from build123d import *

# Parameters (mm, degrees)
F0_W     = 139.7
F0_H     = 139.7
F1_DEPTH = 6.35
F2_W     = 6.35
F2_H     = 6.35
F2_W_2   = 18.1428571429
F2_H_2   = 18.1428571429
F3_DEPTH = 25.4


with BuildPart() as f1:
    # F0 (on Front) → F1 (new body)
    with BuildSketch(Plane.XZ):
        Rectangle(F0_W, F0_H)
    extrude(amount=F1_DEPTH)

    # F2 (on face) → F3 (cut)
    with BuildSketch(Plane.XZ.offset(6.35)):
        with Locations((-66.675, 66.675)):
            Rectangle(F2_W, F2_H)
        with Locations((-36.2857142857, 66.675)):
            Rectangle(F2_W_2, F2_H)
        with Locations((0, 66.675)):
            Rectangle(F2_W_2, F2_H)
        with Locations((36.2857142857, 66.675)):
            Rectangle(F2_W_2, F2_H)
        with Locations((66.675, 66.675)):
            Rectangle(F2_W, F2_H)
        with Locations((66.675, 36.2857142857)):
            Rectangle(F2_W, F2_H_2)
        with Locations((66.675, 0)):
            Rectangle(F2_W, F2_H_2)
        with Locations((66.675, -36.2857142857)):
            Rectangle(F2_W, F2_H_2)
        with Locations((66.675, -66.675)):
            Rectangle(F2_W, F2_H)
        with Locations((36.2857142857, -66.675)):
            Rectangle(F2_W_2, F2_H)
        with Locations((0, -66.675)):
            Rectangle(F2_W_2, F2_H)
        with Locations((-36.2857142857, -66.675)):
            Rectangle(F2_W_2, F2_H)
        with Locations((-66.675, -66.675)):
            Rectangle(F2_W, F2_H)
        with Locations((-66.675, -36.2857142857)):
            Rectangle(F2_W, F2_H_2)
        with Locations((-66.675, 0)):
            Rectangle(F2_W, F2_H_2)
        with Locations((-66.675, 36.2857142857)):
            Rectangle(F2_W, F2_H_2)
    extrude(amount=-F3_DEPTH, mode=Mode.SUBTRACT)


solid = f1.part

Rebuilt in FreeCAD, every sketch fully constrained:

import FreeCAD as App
import Part
import Sketcher
Q = App.Units.Quantity

doc = App.newDocument("Part")
body = doc.addObject("PartDesign::Body", "Body")

sketch1 = body.newObject("Sketcher::SketchObject", "Sketch")
sketch1.AttachmentSupport = (doc.getObject("XZ_Plane"), [""])
sketch1.MapMode = "FlatFace"
sketch1.addGeometry([
    Part.LineSegment(App.Vector(-69.85, 69.85, 0), App.Vector(-69.85, -69.85, 0)),
    Part.LineSegment(App.Vector(-69.85, -69.85, 0), App.Vector(69.85, -69.85, 0)),
    Part.LineSegment(App.Vector(69.85, -69.85, 0), App.Vector(69.85, 69.85, 0)),
    Part.LineSegment(App.Vector(69.85, 69.85, 0), App.Vector(-69.85, 69.85, 0)),
], False)
sketch1.addConstraint([
    Sketcher.Constraint("Coincident", 0, 2, 1, 1),
    Sketcher.Constraint("Coincident", 1, 2, 2, 1),
    Sketcher.Constraint("Coincident", 2, 2, 3, 1),
    Sketcher.Constraint("Coincident", 3, 2, 0, 1),
    Sketcher.Constraint("Vertical", 0),
    Sketcher.Constraint("Horizontal", 1),
    Sketcher.Constraint("Vertical", 2),
    Sketcher.Constraint("Horizontal", 3),
    Sketcher.Constraint("Symmetric", 0, 2, 2, 2, -1, 1),
    Sketcher.Constraint("Equal", 3, 0),
    Sketcher.Constraint("DistanceX", 1, 1, 1, 2, Q("5.5 in")),
])
pad1 = body.newObject("PartDesign::Pad", "Pad")
pad1.Profile = sketch1
pad1.Length = Q("0.25 in")

sketch2 = body.newObject("Sketcher::SketchObject", "Sketch001")
sketch2.AttachmentSupport = (doc.getObject("XZ_Plane"), [""])
sketch2.MapMode = "FlatFace"
sketch2.AttachmentOffset = App.Placement(App.Vector(0, 0, 0.25 * 25.4), App.Rotation())
sketch2.addGeometry([
    Part.LineSegment(App.Vector(-69.85, 69.85, 0), App.Vector(-69.85, 63.5, 0)),
    Part.LineSegment(App.Vector(-69.85, 63.5, 0), App.Vector(-63.5, 63.5, 0)),
    Part.LineSegment(App.Vector(-63.5, 63.5, 0), App.Vector(-63.5, 69.85, 0)),
    Part.LineSegment(App.Vector(-63.5, 69.85, 0), App.Vector(-69.85, 69.85, 0)),
    Part.LineSegment(App.Vector(-45.357143, 69.85, 0), App.Vector(-45.357143, 63.5, 0)),
    Part.LineSegment(App.Vector(-45.357143, 63.5, 0), App.Vector(-27.214286, 63.5, 0)),
    Part.LineSegment(App.Vector(-27.214286, 63.5, 0), App.Vector(-27.214286, 69.85, 0)),
    Part.LineSegment(App.Vector(-27.214286, 69.85, 0), App.Vector(-45.357143, 69.85, 0)),
    Part.LineSegment(App.Vector(-9.071429, 69.85, 0), App.Vector(-9.071429, 63.5, 0)),
    Part.LineSegment(App.Vector(-9.071429, 63.5, 0), App.Vector(9.071429, 63.5, 0)),
    Part.LineSegment(App.Vector(9.071429, 63.5, 0), App.Vector(9.071429, 69.85, 0)),
    Part.LineSegment(App.Vector(9.071429, 69.85, 0), App.Vector(-9.071429, 69.85, 0)),
    Part.LineSegment(App.Vector(27.214286, 69.85, 0), App.Vector(27.214286, 63.5, 0)),
    Part.LineSegment(App.Vector(27.214286, 63.5, 0), App.Vector(45.357143, 63.5, 0)),
    Part.LineSegment(App.Vector(45.357143, 63.5, 0), App.Vector(45.357143, 69.85, 0)),
    Part.LineSegment(App.Vector(45.357143, 69.85, 0), App.Vector(27.214286, 69.85, 0)),
    Part.LineSegment(App.Vector(63.5, 69.85, 0), App.Vector(63.5, 63.5, 0)),
    Part.LineSegment(App.Vector(63.5, 63.5, 0), App.Vector(69.85, 63.5, 0)),
    Part.LineSegment(App.Vector(69.85, 63.5, 0), App.Vector(69.85, 69.85, 0)),
    Part.LineSegment(App.Vector(69.85, 69.85, 0), App.Vector(63.5, 69.85, 0)),
    Part.LineSegment(App.Vector(63.5, 45.357143, 0), App.Vector(63.5, 27.214286, 0)),
    Part.LineSegment(App.Vector(63.5, 27.214286, 0), App.Vector(69.85, 27.214286, 0)),
    Part.LineSegment(App.Vector(69.85, 27.214286, 0), App.Vector(69.85, 45.357143, 0)),
    Part.LineSegment(App.Vector(69.85, 45.357143, 0), App.Vector(63.5, 45.357143, 0)),
    Part.LineSegment(App.Vector(63.5, 9.071429, 0), App.Vector(63.5, -9.071429, 0)),
    Part.LineSegment(App.Vector(63.5, -9.071429, 0), App.Vector(69.85, -9.071429, 0)),
    Part.LineSegment(App.Vector(69.85, -9.071429, 0), App.Vector(69.85, 9.071429, 0)),
    Part.LineSegment(App.Vector(69.85, 9.071429, 0), App.Vector(63.5, 9.071429, 0)),
    Part.LineSegment(App.Vector(63.5, -27.214286, 0), App.Vector(63.5, -45.357143, 0)),
    Part.LineSegment(App.Vector(63.5, -45.357143, 0), App.Vector(69.85, -45.357143, 0)),
    Part.LineSegment(App.Vector(69.85, -45.357143, 0), App.Vector(69.85, -27.214286, 0)),
    Part.LineSegment(App.Vector(69.85, -27.214286, 0), App.Vector(63.5, -27.214286, 0)),
    Part.LineSegment(App.Vector(63.5, -63.5, 0), App.Vector(63.5, -69.85, 0)),
    Part.LineSegment(App.Vector(63.5, -69.85, 0), App.Vector(69.85, -69.85, 0)),
    Part.LineSegment(App.Vector(69.85, -69.85, 0), App.Vector(69.85, -63.5, 0)),
    Part.LineSegment(App.Vector(69.85, -63.5, 0), App.Vector(63.5, -63.5, 0)),
    Part.LineSegment(App.Vector(27.214286, -63.5, 0), App.Vector(27.214286, -69.85, 0)),
    Part.LineSegment(App.Vector(27.214286, -69.85, 0), App.Vector(45.357143, -69.85, 0)),
    Part.LineSegment(App.Vector(45.357143, -69.85, 0), App.Vector(45.357143, -63.5, 0)),
    Part.LineSegment(App.Vector(45.357143, -63.5, 0), App.Vector(27.214286, -63.5, 0)),
    Part.LineSegment(App.Vector(-9.071429, -63.5, 0), App.Vector(-9.071429, -69.85, 0)),
    Part.LineSegment(App.Vector(-9.071429, -69.85, 0), App.Vector(9.071429, -69.85, 0)),
    Part.LineSegment(App.Vector(9.071429, -69.85, 0), App.Vector(9.071429, -63.5, 0)),
    Part.LineSegment(App.Vector(9.071429, -63.5, 0), App.Vector(-9.071429, -63.5, 0)),
    Part.LineSegment(App.Vector(-45.357143, -63.5, 0), App.Vector(-45.357143, -69.85, 0)),
    Part.LineSegment(App.Vector(-45.357143, -69.85, 0), App.Vector(-27.214286, -69.85, 0)),
    Part.LineSegment(App.Vector(-27.214286, -69.85, 0), App.Vector(-27.214286, -63.5, 0)),
    Part.LineSegment(App.Vector(-27.214286, -63.5, 0), App.Vector(-45.357143, -63.5, 0)),
    Part.LineSegment(App.Vector(-69.85, -63.5, 0), App.Vector(-69.85, -69.85, 0)),
    Part.LineSegment(App.Vector(-69.85, -69.85, 0), App.Vector(-63.5, -69.85, 0)),
    Part.LineSegment(App.Vector(-63.5, -69.85, 0), App.Vector(-63.5, -63.5, 0)),
    Part.LineSegment(App.Vector(-63.5, -63.5, 0), App.Vector(-69.85, -63.5, 0)),
    Part.LineSegment(App.Vector(-69.85, -27.214286, 0), App.Vector(-69.85, -45.357143, 0)),
    Part.LineSegment(App.Vector(-69.85, -45.357143, 0), App.Vector(-63.5, -45.357143, 0)),
    Part.LineSegment(App.Vector(-63.5, -45.357143, 0), App.Vector(-63.5, -27.214286, 0)),
    Part.LineSegment(App.Vector(-63.5, -27.214286, 0), App.Vector(-69.85, -27.214286, 0)),
    Part.LineSegment(App.Vector(-69.85, 9.071429, 0), App.Vector(-69.85, -9.071429, 0)),
    Part.LineSegment(App.Vector(-69.85, -9.071429, 0), App.Vector(-63.5, -9.071429, 0)),
    Part.LineSegment(App.Vector(-63.5, -9.071429, 0), App.Vector(-63.5, 9.071429, 0)),
    Part.LineSegment(App.Vector(-63.5, 9.071429, 0), App.Vector(-69.85, 9.071429, 0)),
    Part.LineSegment(App.Vector(-69.85, 45.357143, 0), App.Vector(-69.85, 27.214286, 0)),
    Part.LineSegment(App.Vector(-69.85, 27.214286, 0), App.Vector(-63.5, 27.214286, 0)),
    Part.LineSegment(App.Vector(-63.5, 27.214286, 0), App.Vector(-63.5, 45.357143, 0)),
    Part.LineSegment(App.Vector(-63.5, 45.357143, 0), App.Vector(-69.85, 45.357143, 0)),
], False)
sketch2.addConstraint([
    Sketcher.Constraint("Coincident", 0, 2, 1, 1),
    Sketcher.Constraint("Coincident", 1, 2, 2, 1),
    Sketcher.Constraint("Coincident", 2, 2, 3, 1),
    Sketcher.Constraint("Coincident", 3, 2, 0, 1),
    Sketcher.Constraint("Coincident", 4, 2, 5, 1),
    Sketcher.Constraint("Coincident", 5, 2, 6, 1),
    Sketcher.Constraint("Coincident", 6, 2, 7, 1),
    Sketcher.Constraint("Coincident", 7, 2, 4, 1),
    Sketcher.Constraint("Coincident", 8, 2, 9, 1),
    Sketcher.Constraint("Coincident", 9, 2, 10, 1),
    Sketcher.Constraint("Coincident", 10, 2, 11, 1),
    Sketcher.Constraint("Coincident", 11, 2, 8, 1),
    Sketcher.Constraint("Coincident", 12, 2, 13, 1),
    Sketcher.Constraint("Coincident", 13, 2, 14, 1),
    Sketcher.Constraint("Coincident", 14, 2, 15, 1),
    Sketcher.Constraint("Coincident", 15, 2, 12, 1),
    Sketcher.Constraint("Coincident", 16, 2, 17, 1),
    Sketcher.Constraint("Coincident", 17, 2, 18, 1),
    Sketcher.Constraint("Coincident", 18, 2, 19, 1),
    Sketcher.Constraint("Coincident", 19, 2, 16, 1),
    Sketcher.Constraint("Coincident", 20, 2, 21, 1),
    Sketcher.Constraint("Coincident", 21, 2, 22, 1),
    Sketcher.Constraint("Coincident", 22, 2, 23, 1),
    Sketcher.Constraint("Coincident", 23, 2, 20, 1),
    Sketcher.Constraint("Coincident", 24, 2, 25, 1),
    Sketcher.Constraint("Coincident", 25, 2, 26, 1),
    Sketcher.Constraint("Coincident", 26, 2, 27, 1),
    Sketcher.Constraint("Coincident", 27, 2, 24, 1),
    Sketcher.Constraint("Coincident", 28, 2, 29, 1),
    Sketcher.Constraint("Coincident", 29, 2, 30, 1),
    Sketcher.Constraint("Coincident", 30, 2, 31, 1),
    Sketcher.Constraint("Coincident", 31, 2, 28, 1),
    Sketcher.Constraint("Coincident", 32, 2, 33, 1),
    Sketcher.Constraint("Coincident", 33, 2, 34, 1),
    Sketcher.Constraint("Coincident", 34, 2, 35, 1),
    Sketcher.Constraint("Coincident", 35, 2, 32, 1),
    Sketcher.Constraint("Coincident", 36, 2, 37, 1),
    Sketcher.Constraint("Coincident", 37, 2, 38, 1),
    Sketcher.Constraint("Coincident", 38, 2, 39, 1),
    Sketcher.Constraint("Coincident", 39, 2, 36, 1),
    Sketcher.Constraint("Coincident", 40, 2, 41, 1),
    Sketcher.Constraint("Coincident", 41, 2, 42, 1),
    Sketcher.Constraint("Coincident", 42, 2, 43, 1),
    Sketcher.Constraint("Coincident", 43, 2, 40, 1),
    Sketcher.Constraint("Coincident", 44, 2, 45, 1),
    Sketcher.Constraint("Coincident", 45, 2, 46, 1),
    Sketcher.Constraint("Coincident", 46, 2, 47, 1),
    Sketcher.Constraint("Coincident", 47, 2, 44, 1),
    Sketcher.Constraint("Coincident", 48, 2, 49, 1),
    Sketcher.Constraint("Coincident", 49, 2, 50, 1),
    Sketcher.Constraint("Coincident", 50, 2, 51, 1),
    Sketcher.Constraint("Coincident", 51, 2, 48, 1),
    Sketcher.Constraint("Coincident", 52, 2, 53, 1),
    Sketcher.Constraint("Coincident", 53, 2, 54, 1),
    Sketcher.Constraint("Coincident", 54, 2, 55, 1),
    Sketcher.Constraint("Coincident", 55, 2, 52, 1),
    Sketcher.Constraint("Coincident", 56, 2, 57, 1),
    Sketcher.Constraint("Coincident", 57, 2, 58, 1),
    Sketcher.Constraint("Coincident", 58, 2, 59, 1),
    Sketcher.Constraint("Coincident", 59, 2, 56, 1),
    Sketcher.Constraint("Coincident", 60, 2, 61, 1),
    Sketcher.Constraint("Coincident", 61, 2, 62, 1),
    Sketcher.Constraint("Coincident", 62, 2, 63, 1),
    Sketcher.Constraint("Coincident", 63, 2, 60, 1),
    Sketcher.Constraint("Vertical", 0),
    Sketcher.Constraint("Horizontal", 1),
    Sketcher.Constraint("Vertical", 2),
    Sketcher.Constraint("Horizontal", 3),
    Sketcher.Constraint("Vertical", 4),
    Sketcher.Constraint("Horizontal", 5),
    Sketcher.Constraint("Vertical", 6),
    Sketcher.Constraint("Horizontal", 7),
    Sketcher.Constraint("Vertical", 8),
    Sketcher.Constraint("Horizontal", 9),
    Sketcher.Constraint("Vertical", 10),
    Sketcher.Constraint("Horizontal", 11),
    Sketcher.Constraint("Vertical", 12),
    Sketcher.Constraint("Horizontal", 13),
    Sketcher.Constraint("Vertical", 14),
    Sketcher.Constraint("Horizontal", 15),
    Sketcher.Constraint("Vertical", 16),
    Sketcher.Constraint("Horizontal", 17),
    Sketcher.Constraint("Vertical", 18),
    Sketcher.Constraint("Horizontal", 19),
    Sketcher.Constraint("Vertical", 20),
    Sketcher.Constraint("Horizontal", 21),
    Sketcher.Constraint("Vertical", 22),
    Sketcher.Constraint("Horizontal", 23),
    Sketcher.Constraint("Vertical", 24),
    Sketcher.Constraint("Horizontal", 25),
    Sketcher.Constraint("Vertical", 26),
    Sketcher.Constraint("Horizontal", 27),
    Sketcher.Constraint("Vertical", 28),
    Sketcher.Constraint("Horizontal", 29),
    Sketcher.Constraint("Vertical", 30),
    Sketcher.Constraint("Horizontal", 31),
    Sketcher.Constraint("Vertical", 32),
    Sketcher.Constraint("Horizontal", 33),
    Sketcher.Constraint("Vertical", 34),
    Sketcher.Constraint("Horizontal", 35),
    Sketcher.Constraint("Vertical", 36),
    Sketcher.Constraint("Horizontal", 37),
    Sketcher.Constraint("Vertical", 38),
    Sketcher.Constraint("Horizontal", 39),
    Sketcher.Constraint("Vertical", 40),
    Sketcher.Constraint("Horizontal", 41),
    Sketcher.Constraint("Vertical", 42),
    Sketcher.Constraint("Horizontal", 43),
    Sketcher.Constraint("Vertical", 44),
    Sketcher.Constraint("Horizontal", 45),
    Sketcher.Constraint("Vertical", 46),
    Sketcher.Constraint("Horizontal", 47),
    Sketcher.Constraint("Vertical", 48),
    Sketcher.Constraint("Horizontal", 49),
    Sketcher.Constraint("Vertical", 50),
    Sketcher.Constraint("Horizontal", 51),
    Sketcher.Constraint("Vertical", 52),
    Sketcher.Constraint("Horizontal", 53),
    Sketcher.Constraint("Vertical", 54),
    Sketcher.Constraint("Horizontal", 55),
    Sketcher.Constraint("Vertical", 56),
    Sketcher.Constraint("Horizontal", 57),
    Sketcher.Constraint("Vertical", 58),
    Sketcher.Constraint("Horizontal", 59),
    Sketcher.Constraint("Vertical", 60),
    Sketcher.Constraint("Horizontal", 61),
    Sketcher.Constraint("Vertical", 62),
    Sketcher.Constraint("Horizontal", 63),
    Sketcher.Constraint("Symmetric", 2, 2, 32, 2, -1, 1),
    Sketcher.Constraint("Symmetric", 0, 2, 34, 2, -1, 1),
    Sketcher.Constraint("Symmetric", 6, 2, 36, 2, -1, 1),
    Sketcher.Constraint("Symmetric", 4, 2, 38, 2, -1, 1),
    Sketcher.Constraint("Symmetric", 10, 2, 40, 2, -1, 1),
    Sketcher.Constraint("Symmetric", 8, 2, 42, 2, -1, 1),
    Sketcher.Constraint("Symmetric", 14, 2, 44, 2, -1, 1),
    Sketcher.Constraint("Symmetric", 12, 2, 46, 2, -1, 1),
    Sketcher.Constraint("Symmetric", 18, 2, 48, 2, -1, 1),
    Sketcher.Constraint("Symmetric", 16, 2, 50, 2, -1, 1),
    Sketcher.Constraint("Symmetric", 22, 2, 52, 2, -1, 1),
    Sketcher.Constraint("Symmetric", 20, 2, 54, 2, -1, 1),
    Sketcher.Constraint("Symmetric", 26, 2, 56, 2, -1, 1),
    Sketcher.Constraint("Symmetric", 24, 2, 58, 2, -1, 1),
    Sketcher.Constraint("Symmetric", 30, 2, 60, 2, -1, 1),
    Sketcher.Constraint("Symmetric", 28, 2, 62, 2, -1, 1),
    Sketcher.Constraint("Symmetric", 5, 2, 12, 2, -2),
    Sketcher.Constraint("Symmetric", 7, 2, 14, 2, -2),
    Sketcher.Constraint("Symmetric", 1, 2, 16, 2, -2),
    Sketcher.Constraint("Symmetric", 3, 2, 18, 2, -2),
    Sketcher.Constraint("Symmetric", 29, 2, 52, 2, -2),
    Sketcher.Constraint("Symmetric", 31, 2, 54, 2, -2),
    Sketcher.Constraint("Horizontal", 1, 2, 4, 2),
    Sketcher.Constraint("Horizontal", 3, 2, 6, 2),
    Sketcher.Constraint("Horizontal", 5, 2, 8, 2),
    Sketcher.Constraint("Horizontal", 7, 2, 10, 2),
    Sketcher.Constraint("Horizontal", 25, 2, 56, 2),
    Sketcher.Constraint("Vertical", 19, 2, 20, 2),
    Sketcher.Constraint("Vertical", 18, 2, 21, 2),
    Sketcher.Constraint("Vertical", 23, 2, 24, 2),
    Sketcher.Constraint("Vertical", 22, 2, 25, 2),
    Sketcher.Constraint("Vertical", 11, 2, 40, 2),
    Sketcher.Constraint("Equal", 7, 9),
    Sketcher.Constraint("Equal", 63, 0),
    Sketcher.Constraint("Equal", 47, 20),
    Sketcher.Constraint("Equal", 22, 24),
    Sketcher.Constraint("DistanceX", 1, 1, 1, 2, Q("0.25 in")),
    Sketcher.Constraint("DistanceY", -1, 1, 0, 2, Q("2.5 in")),
    Sketcher.Constraint("DistanceX", 1, 2, -1, 1, Q("2.5 in")),
    Sketcher.Constraint("DistanceX", 5, 1, 5, 2, Q("18.142857 mm")),
    Sketcher.Constraint("DistanceX", 4, 2, -1, 1, Q("45.357143 mm")),
    Sketcher.Constraint("DistanceY", -1, 1, 20, 2, Q("27.214286 mm")),
])
pocket1 = body.newObject("PartDesign::Pocket", "Pocket")
pocket1.Profile = sketch2
pocket1.Length = Q("1 in")

doc.recompute()
